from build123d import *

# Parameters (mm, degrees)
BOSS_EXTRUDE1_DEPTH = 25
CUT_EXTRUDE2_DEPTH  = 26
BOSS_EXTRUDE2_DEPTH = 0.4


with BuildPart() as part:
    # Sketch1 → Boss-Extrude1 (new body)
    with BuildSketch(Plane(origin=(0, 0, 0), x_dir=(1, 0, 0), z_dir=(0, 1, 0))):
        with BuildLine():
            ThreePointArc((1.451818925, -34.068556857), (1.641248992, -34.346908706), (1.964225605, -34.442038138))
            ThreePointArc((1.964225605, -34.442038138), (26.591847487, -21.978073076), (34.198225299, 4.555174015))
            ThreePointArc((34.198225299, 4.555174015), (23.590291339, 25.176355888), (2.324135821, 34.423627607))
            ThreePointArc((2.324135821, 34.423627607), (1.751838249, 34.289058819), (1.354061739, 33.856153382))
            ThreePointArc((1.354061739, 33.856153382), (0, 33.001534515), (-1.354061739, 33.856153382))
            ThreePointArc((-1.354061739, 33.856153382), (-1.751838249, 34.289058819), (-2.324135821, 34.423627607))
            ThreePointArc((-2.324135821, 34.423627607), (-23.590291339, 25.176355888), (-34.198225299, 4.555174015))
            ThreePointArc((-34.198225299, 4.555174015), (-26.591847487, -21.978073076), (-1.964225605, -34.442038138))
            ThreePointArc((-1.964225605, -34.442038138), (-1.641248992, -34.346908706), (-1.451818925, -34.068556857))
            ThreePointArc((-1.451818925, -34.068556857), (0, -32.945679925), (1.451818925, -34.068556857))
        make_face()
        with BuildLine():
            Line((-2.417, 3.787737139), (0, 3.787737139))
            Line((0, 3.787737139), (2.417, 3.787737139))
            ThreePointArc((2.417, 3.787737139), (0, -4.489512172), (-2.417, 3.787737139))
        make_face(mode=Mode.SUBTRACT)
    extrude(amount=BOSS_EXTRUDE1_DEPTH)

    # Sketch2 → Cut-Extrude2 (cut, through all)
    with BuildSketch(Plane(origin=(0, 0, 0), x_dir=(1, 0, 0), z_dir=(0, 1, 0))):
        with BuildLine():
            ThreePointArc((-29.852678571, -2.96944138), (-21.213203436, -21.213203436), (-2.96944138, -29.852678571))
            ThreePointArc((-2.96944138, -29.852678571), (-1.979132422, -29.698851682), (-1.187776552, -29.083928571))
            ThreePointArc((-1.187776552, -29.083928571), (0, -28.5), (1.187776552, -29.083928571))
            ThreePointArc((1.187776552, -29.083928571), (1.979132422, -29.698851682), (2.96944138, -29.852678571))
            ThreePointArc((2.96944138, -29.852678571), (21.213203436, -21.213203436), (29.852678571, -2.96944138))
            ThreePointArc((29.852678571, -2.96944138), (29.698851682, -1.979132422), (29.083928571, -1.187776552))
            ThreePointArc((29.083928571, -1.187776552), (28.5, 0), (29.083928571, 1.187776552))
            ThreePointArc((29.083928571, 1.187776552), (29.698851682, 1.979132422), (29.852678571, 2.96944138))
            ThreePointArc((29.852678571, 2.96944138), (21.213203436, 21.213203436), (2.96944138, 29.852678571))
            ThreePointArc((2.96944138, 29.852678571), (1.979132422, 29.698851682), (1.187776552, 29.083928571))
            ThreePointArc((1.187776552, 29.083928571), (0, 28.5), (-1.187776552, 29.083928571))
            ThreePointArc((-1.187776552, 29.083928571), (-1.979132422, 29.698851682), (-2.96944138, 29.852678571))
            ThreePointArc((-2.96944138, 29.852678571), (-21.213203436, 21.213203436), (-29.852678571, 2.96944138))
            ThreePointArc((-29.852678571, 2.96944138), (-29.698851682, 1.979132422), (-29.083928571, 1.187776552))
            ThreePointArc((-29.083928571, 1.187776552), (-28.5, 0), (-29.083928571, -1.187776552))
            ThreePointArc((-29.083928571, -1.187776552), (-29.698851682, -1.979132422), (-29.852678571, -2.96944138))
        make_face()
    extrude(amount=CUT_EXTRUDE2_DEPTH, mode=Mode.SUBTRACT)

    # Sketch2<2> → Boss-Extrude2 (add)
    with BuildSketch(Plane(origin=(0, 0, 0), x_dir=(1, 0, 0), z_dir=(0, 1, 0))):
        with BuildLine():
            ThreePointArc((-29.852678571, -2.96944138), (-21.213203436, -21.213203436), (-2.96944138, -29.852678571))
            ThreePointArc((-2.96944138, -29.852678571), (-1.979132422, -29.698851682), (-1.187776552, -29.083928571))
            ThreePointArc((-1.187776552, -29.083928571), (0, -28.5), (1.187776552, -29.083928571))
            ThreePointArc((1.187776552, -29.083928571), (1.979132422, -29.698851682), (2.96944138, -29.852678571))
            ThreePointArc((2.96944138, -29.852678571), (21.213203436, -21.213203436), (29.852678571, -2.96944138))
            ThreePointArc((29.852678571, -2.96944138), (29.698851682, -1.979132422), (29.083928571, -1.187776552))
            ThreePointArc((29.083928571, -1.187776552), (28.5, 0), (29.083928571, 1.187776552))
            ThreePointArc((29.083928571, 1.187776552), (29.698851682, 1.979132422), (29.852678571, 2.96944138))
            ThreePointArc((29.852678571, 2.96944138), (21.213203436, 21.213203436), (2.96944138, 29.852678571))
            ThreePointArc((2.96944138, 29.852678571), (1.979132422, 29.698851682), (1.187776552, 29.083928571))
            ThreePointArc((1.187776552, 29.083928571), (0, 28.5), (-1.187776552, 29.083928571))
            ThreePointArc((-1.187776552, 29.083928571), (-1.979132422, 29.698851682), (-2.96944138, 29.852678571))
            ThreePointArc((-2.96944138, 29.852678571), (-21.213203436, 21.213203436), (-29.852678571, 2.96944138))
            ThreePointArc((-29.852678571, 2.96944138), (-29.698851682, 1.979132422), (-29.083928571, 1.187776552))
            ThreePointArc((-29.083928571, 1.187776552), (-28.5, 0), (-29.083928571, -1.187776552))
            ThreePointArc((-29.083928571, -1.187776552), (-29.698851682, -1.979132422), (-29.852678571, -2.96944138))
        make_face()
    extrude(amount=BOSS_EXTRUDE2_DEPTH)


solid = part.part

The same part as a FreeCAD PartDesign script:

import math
import FreeCAD as App
import Part
import Sketcher
from FreeCAD import Vector
Q = App.Units.Quantity

doc = App.newDocument("Part")
body = doc.addObject("PartDesign::Body", "Body")

# Sketch on XZ plane
sketch1 = body.newObject("Sketcher::SketchObject", "Sketch")
sketch1.AttachmentSupport = (doc.getObject("XZ_Plane"), [""])
sketch1.MapMode = "FlatFace"
sketch1.addGeometry([
    Part.ArcOfCircle(Part.Circle(Vector(1.9, 33.9, 0), Vector(0, 0, 1), 0.5), math.radians(87), math.radians(165)),  # 0
    Part.ArcOfCircle(Part.Circle(Vector(0, 0, 0), Vector(0, 0, 1), 34.5), math.radians(-8), math.radians(87)),  # 1
    Part.ArcOfCircle(Part.Circle(Vector(0, 0, 0), Vector(0, 0, 1), 34.5), math.radians(-86), math.radians(-8)),  # 2
    Part.ArcOfCircle(Part.Circle(Vector(2.3, -33.4, 0), Vector(0, 0, 1), 1), math.radians(-155), math.radians(-86)),  # 3
    Part.ArcOfCircle(Part.Circle(Vector(0, -34.5, 0), Vector(0, 0, 1), 1.5), math.radians(25), math.radians(155)),  # 4
    Part.ArcOfCircle(Part.Circle(Vector(-2.3, -33.4, 0), Vector(0, 0, 1), 1), math.radians(-94), math.radians(-25)),  # 5
    Part.ArcOfCircle(Part.Circle(Vector(0, 0, 0), Vector(0, 0, 1), 34.5), math.radians(-172), math.radians(-94)),  # 6
    Part.ArcOfCircle(Part.Circle(Vector(0, 0, 0), Vector(0, 0, 1), 34.5), math.radians(93), math.radians(188)),  # 7
    Part.ArcOfCircle(Part.Circle(Vector(-1.9, 33.9, 0), Vector(0, 0, 1), 0.5), math.radians(15), math.radians(93)),  # 8
    Part.ArcOfCircle(Part.Circle(Vector(0, 34.4, 0), Vector(0, 0, 1), 1.5), math.radians(-165), math.radians(-15)),  # 9
    Part.ArcOfCircle(Part.Circle(Vector(0, 0, 0), Vector(0, 0, 1), 4.5), math.radians(-57), math.radians(237)),  # 10
    Part.LineSegment(Vector(-2.4, -3.8, 0), Vector(2.4, -3.8, 0)),  # 11
], False)
sketch1.addConstraint([
    Sketcher.Constraint("Tangent", 0, 1, 1, 2),
    Sketcher.Constraint("Tangent", 1, 1, 2, 2),
    Sketcher.Constraint("Tangent", 2, 1, 3, 2),
    Sketcher.Constraint("Tangent", 3, 1, 4, 1),
    Sketcher.Constraint("Tangent", 4, 2, 5, 2),
    Sketcher.Constraint("Tangent", 5, 1, 6, 2),
    Sketcher.Constraint("Tangent", 6, 1, 7, 2),
    Sketcher.Constraint("Tangent", 7, 1, 8, 2),
    Sketcher.Constraint("Tangent", 8, 1, 9, 1),
    Sketcher.Constraint("Tangent", 9, 2, 0, 2),
    Sketcher.Constraint("Coincident", 10, 1, 11, 2),
    Sketcher.Constraint("Coincident", 11, 1, 10, 2),
    Sketcher.Constraint("Horizontal", 11),
    Sketcher.Constraint("Coincident", 6, 3, 1, 3),
    Sketcher.Constraint("Coincident", 10, 3, 1, 3),
    Sketcher.Constraint("Equal", 1, 2),
    Sketcher.Constraint("Equal", 3, 5),
    Sketcher.Constraint("Equal", 2, 6),
    Sketcher.Constraint("Equal", 6, 7),
    Sketcher.Constraint("Equal", 0, 8),
    Sketcher.Constraint("Equal", 4, 9),
    Sketcher.Constraint("Symmetric", 3, 3, 5, 3, -2),
    Sketcher.Constraint("PointOnObject", 9, 3, -2),
    Sketcher.Constraint("Horizontal", 1, 1, 6, 1),
    Sketcher.Constraint("Radius", 3, Q("1 mm")),
    Sketcher.Constraint("Radius", 0, Q("0.5 mm")),
    Sketcher.Constraint("Radius", 1, Q("34.5 mm")),
    Sketcher.Constraint("Radius", 4, Q("1.5 mm")),
    Sketcher.Constraint("DistanceX", 11, 1, 11, 2, Q("4.834 mm")),
    Sketcher.Constraint("DistanceY", 1, 3, -1, 1, Q("0.002001 mm")),
    Sketcher.Constraint("Radius", 10, Q("4.491513 mm")),
    Sketcher.Constraint("DistanceY", 3, 3, -1, 1, Q("33.425899 mm")),
    Sketcher.Constraint("DistanceX", -1, 1, 0, 3, Q("1.935759 mm")),
    Sketcher.Constraint("DistanceX", -1, 1, 1, 1, Q("34.198225 mm")),
])
pad1 = body.newObject("PartDesign::Pad", "Pad")
pad1.Profile = sketch1
pad1.Length = 25
pad1.Reversed = True

# Sketch on XZ plane
sketch2 = body.newObject("Sketcher::SketchObject", "Sketch001")
sketch2.AttachmentSupport = (doc.getObject("XZ_Plane"), [""])
sketch2.MapMode = "FlatFace"
sketch2.addGeometry([
    Part.ArcOfCircle(Part.Circle(Vector(0, 0, 0), Vector(0, 0, 1), 30), math.radians(96), math.radians(174)),  # 0
    Part.ArcOfCircle(Part.Circle(Vector(-2.8, 27.9, 0), Vector(0, 0, 1), 2), math.radians(38), math.radians(96)),  # 1
    Part.ArcOfCircle(Part.Circle(Vector(0, 30, 0), Vector(0, 0, 1), 1.5), math.radians(-142), math.radians(-38)),  # 2
    Part.ArcOfCircle(Part.Circle(Vector(2.8, 27.9, 0), Vector(0, 0, 1), 2), math.radians(84), math.radians(142)),  # 3
    Part.ArcOfCircle(Part.Circle(Vector(0, 0, 0), Vector(0, 0, 1), 30), math.radians(6), math.radians(84)),  # 4
    Part.ArcOfCircle(Part.Circle(Vector(27.9, 2.8, 0), Vector(0, 0, 1), 2), math.radians(-52), math.radians(6)),  # 5
    Part.ArcOfCircle(Part.Circle(Vector(30, 0, 0), Vector(0, 0, 1), 1.5), math.radians(128), math.radians(232)),  # 6
    Part.ArcOfCircle(Part.Circle(Vector(27.9, -2.8, 0), Vector(0, 0, 1), 2), math.radians(-6), math.radians(52)),  # 7
    Part.ArcOfCircle(Part.Circle(Vector(0, 0, 0), Vector(0, 0, 1), 30), math.radians(-84), math.radians(-6)),  # 8
    Part.ArcOfCircle(Part.Circle(Vector(2.8, -27.9, 0), Vector(0, 0, 1), 2), math.radians(-142), math.radians(-84)),  # 9
    Part.ArcOfCircle(Part.Circle(Vector(0, -30, 0), Vector(0, 0, 1), 1.5), math.radians(38), math.radians(142)),  # 10
    Part.ArcOfCircle(Part.Circle(Vector(-2.8, -27.9, 0), Vector(0, 0, 1), 2), math.radians(-96), math.radians(-38)),  # 11
    Part.ArcOfCircle(Part.Circle(Vector(0, 0, 0), Vector(0, 0, 1), 30), math.radians(-174), math.radians(-96)),  # 12
    Part.ArcOfCircle(Part.Circle(Vector(-27.9, -2.8, 0), Vector(0, 0, 1), 2), math.radians(128), math.radians(186)),  # 13
    Part.ArcOfCircle(Part.Circle(Vector(-30, 0, 0), Vector(0, 0, 1), 1.5), math.radians(-52), math.radians(52)),  # 14
    Part.ArcOfCircle(Part.Circle(Vector(-27.9, 2.8, 0), Vector(0, 0, 1), 2), math.radians(174), math.radians(232)),  # 15
], False)
sketch2.addConstraint([
    Sketcher.Constraint("Tangent", 0, 1, 1, 2),
    Sketcher.Constraint("Tangent", 1, 1, 2, 1),
    Sketcher.Constraint("Tangent", 2, 2, 3, 2),
    Sketcher.Constraint("Tangent", 3, 1, 4, 2),
    Sketcher.Constraint("Tangent", 4, 1, 5, 2),
    Sketcher.Constraint("Tangent", 5, 1, 6, 1),
    Sketcher.Constraint("Tangent", 6, 2, 7, 2),
    Sketcher.Constraint("Tangent", 7, 1, 8, 2),
    Sketcher.Constraint("Tangent", 8, 1, 9, 2),
    Sketcher.Constraint("Tangent", 9, 1, 10, 1),
    Sketcher.Constraint("Tangent", 10, 2, 11, 2),
    Sketcher.Constraint("Tangent", 11, 1, 12, 2),
    Sketcher.Constraint("Tangent", 12, 1, 13, 2),
    Sketcher.Constraint("Tangent", 13, 1, 14, 1),
    Sketcher.Constraint("Tangent", 14, 2, 15, 2),
    Sketcher.Constraint("Tangent", 15, 1, 0, 2),
    Sketcher.Constraint("Coincident", 0, 3, -1, 1),
    Sketcher.Constraint("Coincident", 4, 3, -1, 1),
    Sketcher.Constraint("Coincident", 8, 3, -1, 1),
    Sketcher.Constraint("Coincident", 12, 3, -1, 1),
    Sketcher.Constraint("Equal", 1, 3),
    Sketcher.Constraint("Equal", 0, 4),
    Sketcher.Constraint("Equal", 3, 5),
    Sketcher.Constraint("Equal", 2, 6),
    Sketcher.Constraint("Equal", 5, 7),
    Sketcher.Constraint("Equal", 4, 8),
    Sketcher.Constraint("Equal", 7, 9),
    Sketcher.Constraint("Equal", 6, 10),
    Sketcher.Constraint("Equal", 9, 11),
    Sketcher.Constraint("Equal", 8, 12),
    Sketcher.Constraint("Equal", 11, 13),
    Sketcher.Constraint("Equal", 10, 14),
    Sketcher.Constraint("Equal", 13, 15),
    Sketcher.Constraint("Symmetric", 2, 3, 10, 3, -1, 1),
    Sketcher.Constraint("Symmetric", 6, 3, 14, 3, -1, 1),
    Sketcher.Constraint("PointOnObject", 2, 3, -2),
    Sketcher.Constraint("PointOnObject", 6, 3, -1),
    Sketcher.Constraint("Radius", 0, Q("30 mm")),
    Sketcher.Constraint("Radius", 1, Q("2 mm")),
    Sketcher.Constraint("Radius", 2, Q("1.5 mm")),
    Sketcher.Constraint("DistanceY", -1, 1, 2, 3, Q("30 mm")),
    Sketcher.Constraint("DistanceX", -1, 1, 6, 3, Q("30 mm")),
])
pocket1 = body.newObject("PartDesign::Pocket", "Pocket")
pocket1.Profile = sketch2
pocket1.Type = "ThroughAll"

# Sketch on XZ plane
sketch3 = body.newObject("Sketcher::SketchObject", "Sketch002")
sketch3.AttachmentSupport = (doc.getObject("XZ_Plane"), [""])
sketch3.MapMode = "FlatFace"
sketch3.addGeometry([
    Part.ArcOfCircle(Part.Circle(Vector(0, 0, 0), Vector(0, 0, 1), 30), math.radians(96), math.radians(174)),  # 0
    Part.ArcOfCircle(Part.Circle(Vector(-2.8, 27.9, 0), Vector(0, 0, 1), 2), math.radians(38), math.radians(96)),  # 1
    Part.ArcOfCircle(Part.Circle(Vector(0, 30, 0), Vector(0, 0, 1), 1.5), math.radians(-142), math.radians(-38)),  # 2
    Part.ArcOfCircle(Part.Circle(Vector(2.8, 27.9, 0), Vector(0, 0, 1), 2), math.radians(84), math.radians(142)),  # 3
    Part.ArcOfCircle(Part.Circle(Vector(0, 0, 0), Vector(0, 0, 1), 30), math.radians(6), math.radians(84)),  # 4
    Part.ArcOfCircle(Part.Circle(Vector(27.9, 2.8, 0), Vector(0, 0, 1), 2), math.radians(-52), math.radians(6)),  # 5
    Part.ArcOfCircle(Part.Circle(Vector(30, 0, 0), Vector(0, 0, 1), 1.5), math.radians(128), math.radians(232)),  # 6
    Part.ArcOfCircle(Part.Circle(Vector(27.9, -2.8, 0), Vector(0, 0, 1), 2), math.radians(-6), math.radians(52)),  # 7
    Part.ArcOfCircle(Part.Circle(Vector(0, 0, 0), Vector(0, 0, 1), 30), math.radians(-84), math.radians(-6)),  # 8
    Part.ArcOfCircle(Part.Circle(Vector(2.8, -27.9, 0), Vector(0, 0, 1), 2), math.radians(-142), math.radians(-84)),  # 9
    Part.ArcOfCircle(Part.Circle(Vector(0, -30, 0), Vector(0, 0, 1), 1.5), math.radians(38), math.radians(142)),  # 10
    Part.ArcOfCircle(Part.Circle(Vector(-2.8, -27.9, 0), Vector(0, 0, 1), 2), math.radians(-96), math.radians(-38)),  # 11
    Part.ArcOfCircle(Part.Circle(Vector(0, 0, 0), Vector(0, 0, 1), 30), math.radians(-174), math.radians(-96)),  # 12
    Part.ArcOfCircle(Part.Circle(Vector(-27.9, -2.8, 0), Vector(0, 0, 1), 2), math.radians(128), math.radians(186)),  # 13
    Part.ArcOfCircle(Part.Circle(Vector(-30, 0, 0), Vector(0, 0, 1), 1.5), math.radians(-52), math.radians(52)),  # 14
    Part.ArcOfCircle(Part.Circle(Vector(-27.9, 2.8, 0), Vector(0, 0, 1), 2), math.radians(174), math.radians(232)),  # 15
], False)
sketch3.addConstraint([
    Sketcher.Constraint("Tangent", 0, 1, 1, 2),
    Sketcher.Constraint("Tangent", 1, 1, 2, 1),
    Sketcher.Constraint("Tangent", 2, 2, 3, 2),
    Sketcher.Constraint("Tangent", 3, 1, 4, 2),
    Sketcher.Constraint("Tangent", 4, 1, 5, 2),
    Sketcher.Constraint("Tangent", 5, 1, 6, 1),
    Sketcher.Constraint("Tangent", 6, 2, 7, 2),
    Sketcher.Constraint("Tangent", 7, 1, 8, 2),
    Sketcher.Constraint("Tangent", 8, 1, 9, 2),
    Sketcher.Constraint("Tangent", 9, 1, 10, 1),
    Sketcher.Constraint("Tangent", 10, 2, 11, 2),
    Sketcher.Constraint("Tangent", 11, 1, 12, 2),
    Sketcher.Constraint("Tangent", 12, 1, 13, 2),
    Sketcher.Constraint("Tangent", 13, 1, 14, 1),
    Sketcher.Constraint("Tangent", 14, 2, 15, 2),
    Sketcher.Constraint("Tangent", 15, 1, 0, 2),
    Sketcher.Constraint("Coincident", 0, 3, -1, 1),
    Sketcher.Constraint("Coincident", 4, 3, -1, 1),
    Sketcher.Constraint("Coincident", 8, 3, -1, 1),
    Sketcher.Constraint("Coincident", 12, 3, -1, 1),
    Sketcher.Constraint("Equal", 1, 3),
    Sketcher.Constraint("Equal", 0, 4),
    Sketcher.Constraint("Equal", 3, 5),
    Sketcher.Constraint("Equal", 2, 6),
    Sketcher.Constraint("Equal", 5, 7),
    Sketcher.Constraint("Equal", 4, 8),
    Sketcher.Constraint("Equal", 7, 9),
    Sketcher.Constraint("Equal", 6, 10),
    Sketcher.Constraint("Equal", 9, 11),
    Sketcher.Constraint("Equal", 8, 12),
    Sketcher.Constraint("Equal", 11, 13),
    Sketcher.Constraint("Equal", 10, 14),
    Sketcher.Constraint("Equal", 13, 15),
    Sketcher.Constraint("Symmetric", 2, 3, 10, 3, -1, 1),
    Sketcher.Constraint("Symmetric", 6, 3, 14, 3, -1, 1),
    Sketcher.Constraint("PointOnObject", 2, 3, -2),
    Sketcher.Constraint("PointOnObject", 6, 3, -1),
    Sketcher.Constraint("Radius", 0, Q("30 mm")),
    Sketcher.Constraint("Radius", 1, Q("2 mm")),
    Sketcher.Constraint("Radius", 2, Q("1.5 mm")),
    Sketcher.Constraint("DistanceY", -1, 1, 2, 3, Q("30 mm")),
    Sketcher.Constraint("DistanceX", -1, 1, 6, 3, Q("30 mm")),
])
pad2 = body.newObject("PartDesign::Pad", "Pad001")
pad2.Profile = sketch3
pad2.Length = 0.4
pad2.Reversed = True

doc.recompute()
